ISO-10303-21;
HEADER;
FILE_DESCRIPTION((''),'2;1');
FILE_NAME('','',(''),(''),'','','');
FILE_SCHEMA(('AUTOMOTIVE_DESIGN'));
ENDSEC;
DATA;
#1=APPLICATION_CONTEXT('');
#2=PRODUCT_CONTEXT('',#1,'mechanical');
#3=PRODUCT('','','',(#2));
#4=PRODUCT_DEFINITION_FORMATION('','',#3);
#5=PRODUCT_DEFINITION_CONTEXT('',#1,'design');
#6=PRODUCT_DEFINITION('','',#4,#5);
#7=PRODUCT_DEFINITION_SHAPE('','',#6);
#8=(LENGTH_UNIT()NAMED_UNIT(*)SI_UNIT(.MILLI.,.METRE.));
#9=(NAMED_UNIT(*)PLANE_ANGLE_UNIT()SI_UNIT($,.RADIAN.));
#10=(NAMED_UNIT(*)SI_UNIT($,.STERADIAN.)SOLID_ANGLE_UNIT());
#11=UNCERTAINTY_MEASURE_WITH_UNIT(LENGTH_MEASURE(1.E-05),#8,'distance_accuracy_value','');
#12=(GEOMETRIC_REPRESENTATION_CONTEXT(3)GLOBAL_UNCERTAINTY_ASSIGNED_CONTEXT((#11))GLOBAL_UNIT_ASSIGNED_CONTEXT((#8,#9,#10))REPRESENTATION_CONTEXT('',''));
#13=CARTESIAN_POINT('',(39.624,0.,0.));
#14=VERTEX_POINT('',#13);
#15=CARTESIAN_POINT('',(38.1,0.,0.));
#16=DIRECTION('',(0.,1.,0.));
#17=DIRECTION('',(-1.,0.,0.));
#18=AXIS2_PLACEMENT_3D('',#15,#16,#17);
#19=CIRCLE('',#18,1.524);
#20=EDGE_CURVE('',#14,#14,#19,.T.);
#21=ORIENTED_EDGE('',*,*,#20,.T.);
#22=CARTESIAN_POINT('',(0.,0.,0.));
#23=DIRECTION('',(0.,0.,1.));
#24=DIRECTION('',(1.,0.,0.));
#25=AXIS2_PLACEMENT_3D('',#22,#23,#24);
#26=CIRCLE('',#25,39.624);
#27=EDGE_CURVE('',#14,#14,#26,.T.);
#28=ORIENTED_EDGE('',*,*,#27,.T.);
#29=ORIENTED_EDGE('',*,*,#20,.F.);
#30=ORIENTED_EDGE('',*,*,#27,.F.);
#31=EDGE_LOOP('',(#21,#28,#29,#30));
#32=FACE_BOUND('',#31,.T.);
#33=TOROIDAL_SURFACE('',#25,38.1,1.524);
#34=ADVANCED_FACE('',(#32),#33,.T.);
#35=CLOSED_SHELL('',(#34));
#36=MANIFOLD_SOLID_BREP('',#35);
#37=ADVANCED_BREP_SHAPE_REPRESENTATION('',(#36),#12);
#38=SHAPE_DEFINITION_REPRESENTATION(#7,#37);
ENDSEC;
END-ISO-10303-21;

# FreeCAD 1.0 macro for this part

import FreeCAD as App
import Part
import Sketcher
Q = App.Units.Quantity

doc = App.newDocument("Part")
params = doc.addObject("Spreadsheet::Sheet", "Params")
for row, (alias, value) in enumerate([
    ("sketch1_diameter", "0.12 in"),
    ("sketch2_diameter", "3 in"),
], start=1):
    params.set(f"A{row}", alias)
    params.set(f"B{row}", "=" + value)
    params.setAlias(f"B{row}", alias)

body = doc.addObject("PartDesign::Body", "Body")

sketch1 = body.newObject("Sketcher::SketchObject", "Sketch")
sketch1.AttachmentSupport = (doc.getObject("XZ_Plane"), [""])
sketch1.MapMode = "FlatFace"
sketch1.addGeometry(Part.Circle(App.Vector(38.1, 0, 0), App.Vector(0, 0, 1), 1.524), False)
sketch1.addConstraint(Sketcher.Constraint("PointOnObject", 0, 3, -1))
sketch1.addConstraint(Sketcher.Constraint("Diameter", 0, Q("0.12 in")))
sketch1.addConstraint(Sketcher.Constraint("DistanceX", -1, 1, 0, 3, Q("1.5 in")))
sketch1.setExpression("Constraints[1]", "Params.sketch1_diameter")

sketch2 = body.newObject("Sketcher::SketchObject", "Sketch001")
sketch2.AttachmentSupport = (doc.getObject("XY_Plane"), [""])
sketch2.MapMode = "FlatFace"
sketch2.addGeometry(Part.Circle(App.Vector(0, 0, 0), App.Vector(0, 0, 1), 38.1), False)
sketch2.addConstraint(Sketcher.Constraint("Coincident", 0, 3, -1, 1))
sketch2.addConstraint(Sketcher.Constraint("Diameter", 0, Q("3 in")))
sketch2.setExpression("Constraints[1]", "Params.sketch2_diameter")
doc.recompute()

additivepipe = body.newObject("PartDesign::AdditivePipe", "AdditivePipe")
additivepipe.Profile = sketch1
additivepipe.Spine = (sketch2, ["Edge1"])

doc.recompute()
